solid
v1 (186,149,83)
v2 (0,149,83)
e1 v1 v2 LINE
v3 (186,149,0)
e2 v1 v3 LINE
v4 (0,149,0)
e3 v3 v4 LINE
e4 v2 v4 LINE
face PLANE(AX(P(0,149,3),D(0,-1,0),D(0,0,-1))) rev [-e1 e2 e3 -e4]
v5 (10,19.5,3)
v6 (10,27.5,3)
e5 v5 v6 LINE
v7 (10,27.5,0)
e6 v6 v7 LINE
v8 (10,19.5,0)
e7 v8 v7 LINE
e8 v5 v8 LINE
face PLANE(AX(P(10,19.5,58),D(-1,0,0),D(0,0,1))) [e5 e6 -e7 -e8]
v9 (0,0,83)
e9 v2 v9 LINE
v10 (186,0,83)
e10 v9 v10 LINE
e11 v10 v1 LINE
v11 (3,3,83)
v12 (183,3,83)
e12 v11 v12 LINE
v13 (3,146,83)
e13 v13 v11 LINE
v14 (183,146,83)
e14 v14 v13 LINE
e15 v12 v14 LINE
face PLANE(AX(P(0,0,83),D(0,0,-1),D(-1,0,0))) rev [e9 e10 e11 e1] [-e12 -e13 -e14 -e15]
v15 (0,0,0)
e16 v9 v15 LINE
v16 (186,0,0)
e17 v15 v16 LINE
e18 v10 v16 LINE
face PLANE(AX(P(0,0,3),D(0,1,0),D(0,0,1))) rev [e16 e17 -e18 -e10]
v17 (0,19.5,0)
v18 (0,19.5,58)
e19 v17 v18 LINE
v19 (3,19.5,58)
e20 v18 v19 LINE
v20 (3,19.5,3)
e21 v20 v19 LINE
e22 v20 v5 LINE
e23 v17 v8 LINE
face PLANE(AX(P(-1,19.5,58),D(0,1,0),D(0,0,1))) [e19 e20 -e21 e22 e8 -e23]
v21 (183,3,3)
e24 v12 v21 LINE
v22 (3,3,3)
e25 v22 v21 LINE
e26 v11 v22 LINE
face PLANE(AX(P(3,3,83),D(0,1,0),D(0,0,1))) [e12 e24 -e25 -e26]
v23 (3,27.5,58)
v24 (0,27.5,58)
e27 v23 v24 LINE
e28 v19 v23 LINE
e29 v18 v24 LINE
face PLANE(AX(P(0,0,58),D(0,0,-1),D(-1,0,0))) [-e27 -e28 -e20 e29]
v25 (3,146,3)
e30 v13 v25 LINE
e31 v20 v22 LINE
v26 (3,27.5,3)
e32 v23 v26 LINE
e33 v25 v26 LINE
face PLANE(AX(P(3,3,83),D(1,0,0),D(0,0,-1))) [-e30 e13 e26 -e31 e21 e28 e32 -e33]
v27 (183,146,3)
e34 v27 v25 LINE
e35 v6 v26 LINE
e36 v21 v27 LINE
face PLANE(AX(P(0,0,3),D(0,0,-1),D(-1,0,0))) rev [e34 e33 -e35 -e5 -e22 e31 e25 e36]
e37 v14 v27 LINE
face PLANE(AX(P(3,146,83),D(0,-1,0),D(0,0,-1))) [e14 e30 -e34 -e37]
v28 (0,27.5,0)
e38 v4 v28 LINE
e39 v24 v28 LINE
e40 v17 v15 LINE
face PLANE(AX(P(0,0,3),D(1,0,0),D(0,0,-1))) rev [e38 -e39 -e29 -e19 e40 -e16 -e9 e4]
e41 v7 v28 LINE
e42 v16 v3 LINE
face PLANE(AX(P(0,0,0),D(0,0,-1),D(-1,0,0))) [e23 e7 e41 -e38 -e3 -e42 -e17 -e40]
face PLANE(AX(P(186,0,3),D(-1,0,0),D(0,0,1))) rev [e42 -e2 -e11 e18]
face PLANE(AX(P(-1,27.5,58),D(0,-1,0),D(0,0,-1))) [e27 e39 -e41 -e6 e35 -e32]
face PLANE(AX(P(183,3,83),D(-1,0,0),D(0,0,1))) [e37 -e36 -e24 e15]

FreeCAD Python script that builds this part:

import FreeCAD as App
import Part
import Sketcher

doc = App.newDocument("Part")
body = doc.addObject("PartDesign::Body", "Body")

sketch1 = body.newObject("Sketcher::SketchObject", "Sketch")
sketch1.AttachmentSupport = (doc.getObject("XY_Plane"), [""])
sketch1.MapMode = "FlatFace"
sketch1.addGeometry(Part.LineSegment(App.Vector(0, 149, 0), App.Vector(0, 0, 0)), False)
sketch1.addGeometry(Part.LineSegment(App.Vector(0, 0, 0), App.Vector(186, 0, 0)), False)
sketch1.addGeometry(Part.LineSegment(App.Vector(186, 0, 0), App.Vector(186, 149, 0)), False)
sketch1.addGeometry(Part.LineSegment(App.Vector(186, 149, 0), App.Vector(0, 149, 0)), False)
sketch1.addConstraint(Sketcher.Constraint("Coincident", 0, 2, 1, 1))
sketch1.addConstraint(Sketcher.Constraint("Coincident", 1, 2, 2, 1))
sketch1.addConstraint(Sketcher.Constraint("Coincident", 2, 2, 3, 1))
sketch1.addConstraint(Sketcher.Constraint("Coincident", 3, 2, 0, 1))
sketch1.addConstraint(Sketcher.Constraint("Vertical", 0))
sketch1.addConstraint(Sketcher.Constraint("Horizontal", 1))
sketch1.addConstraint(Sketcher.Constraint("Vertical", 2))
sketch1.addConstraint(Sketcher.Constraint("Horizontal", 3))
sketch1.addConstraint(Sketcher.Constraint("Coincident", 0, 2, -1, 1))
sketch1.addConstraint(Sketcher.Constraint("DistanceX", 1, 1, 1, 2, 186.0))
sketch1.addConstraint(Sketcher.Constraint("DistanceY", 0, 2, 0, 1, 149.0))
pad1 = body.newObject("PartDesign::Pad", "Pad")
pad1.Profile = sketch1
pad1.Length = 3

sketch2 = body.newObject("Sketcher::SketchObject", "Sketch001")
sketch2.AttachmentSupport = (doc.getObject("XY_Plane"), [""])
sketch2.MapMode = "FlatFace"
sketch2.addGeometry(Part.LineSegment(App.Vector(0, 149, 0), App.Vector(0, 0, 0)), False)
sketch2.addGeometry(Part.LineSegment(App.Vector(0, 0, 0), App.Vector(186, 0, 0)), False)
sketch2.addGeometry(Part.LineSegment(App.Vector(186, 0, 0), App.Vector(186, 149, 0)), False)
sketch2.addGeometry(Part.LineSegment(App.Vector(186, 149, 0), App.Vector(0, 149, 0)), False)
sketch2.addGeometry(Part.LineSegment(App.Vector(183, 3, 0), App.Vector(3, 3, 0)), False)
sketch2.addGeometry(Part.LineSegment(App.Vector(3, 3, 0), App.Vector(3, 146, 0)), False)
sketch2.addGeometry(Part.LineSegment(App.Vector(3, 146, 0), App.Vector(183, 146, 0)), False)
sketch2.addGeometry(Part.LineSegment(App.Vector(183, 146, 0), App.Vector(183, 3, 0)), False)
sketch2.addConstraint(Sketcher.Constraint("Coincident", 0, 2, 1, 1))
sketch2.addConstraint(Sketcher.Constraint("Coincident", 1, 2, 2, 1))
sketch2.addConstraint(Sketcher.Constraint("Coincident", 2, 2, 3, 1))
sketch2.addConstraint(Sketcher.Constraint("Coincident", 3, 2, 0, 1))
sketch2.addConstraint(Sketcher.Constraint("Coincident", 4, 2, 5, 1))
sketch2.addConstraint(Sketcher.Constraint("Coincident", 5, 2, 6, 1))
sketch2.addConstraint(Sketcher.Constraint("Coincident", 6, 2, 7, 1))
sketch2.addConstraint(Sketcher.Constraint("Coincident", 7, 2, 4, 1))
sketch2.addConstraint(Sketcher.Constraint("Vertical", 0))
sketch2.addConstraint(Sketcher.Constraint("Horizontal", 1))
sketch2.addConstraint(Sketcher.Constraint("Vertical", 2))
sketch2.addConstraint(Sketcher.Constraint("Horizontal", 3))
sketch2.addConstraint(Sketcher.Constraint("Horizontal", 4))
sketch2.addConstraint(Sketcher.Constraint("Vertical", 5))
sketch2.addConstraint(Sketcher.Constraint("Horizontal", 6))
sketch2.addConstraint(Sketcher.Constraint("Vertical", 7))
sketch2.addConstraint(Sketcher.Constraint("Coincident", 0, 2, -1, 1))
sketch2.addConstraint(Sketcher.Constraint("DistanceX", 1, 1, 1, 2, 186.0))
sketch2.addConstraint(Sketcher.Constraint("DistanceX", 4, 2, 4, 1, 180.0))
sketch2.addConstraint(Sketcher.Constraint("DistanceY", 0, 2, 0, 1, 149.0))
sketch2.addConstraint(Sketcher.Constraint("DistanceY", 5, 1, 5, 2, 143.0))
sketch2.addConstraint(Sketcher.Constraint("DistanceX", -1, 1, 4, 2, 3.0))
sketch2.addConstraint(Sketcher.Constraint("DistanceY", -1, 1, 4, 2, 3.0))
pad2 = body.newObject("PartDesign::Pad", "Pad001")
pad2.Profile = sketch2
pad2.Length = 83

sketch3 = body.newObject("Sketcher::SketchObject", "Sketch002")
sketch3.AttachmentSupport = (doc.getObject("XY_Plane"), [""])
sketch3.MapMode = "FlatFace"
sketch3.addGeometry(Part.LineSegment(App.Vector(-1, 28, 0), App.Vector(-1, 20, 0)), False)
sketch3.addGeometry(Part.LineSegment(App.Vector(-1, 20, 0), App.Vector(10, 20, 0)), False)
sketch3.addGeometry(Part.LineSegment(App.Vector(10, 20, 0), App.Vector(10, 28, 0)), False)
sketch3.addGeometry(Part.LineSegment(App.Vector(10, 28, 0), App.Vector(-1, 28, 0)), False)
sketch3.addConstraint(Sketcher.Constraint("Coincident", 0, 2, 1, 1))
sketch3.addConstraint(Sketcher.Constraint("Coincident", 1, 2, 2, 1))
sketch3.addConstraint(Sketcher.Constraint("Coincident", 2, 2, 3, 1))
sketch3.addConstraint(Sketcher.Constraint("Coincident", 3, 2, 0, 1))
sketch3.addConstraint(Sketcher.Constraint("Vertical", 0))
sketch3.addConstraint(Sketcher.Constraint("Horizontal", 1))
sketch3.addConstraint(Sketcher.Constraint("Vertical", 2))
sketch3.addConstraint(Sketcher.Constraint("Horizontal", 3))
sketch3.addConstraint(Sketcher.Constraint("DistanceX", 1, 1, 1, 2, 11.0))
sketch3.addConstraint(Sketcher.Constraint("DistanceY", 0, 2, 0, 1, 8.0))
sketch3.addConstraint(Sketcher.Constraint("DistanceX", 0, 2, -1, 1, 1.0))
sketch3.addConstraint(Sketcher.Constraint("DistanceY", -1, 1, 0, 2, 19.5))
pocket1 = body.newObject("PartDesign::Pocket", "Pocket")
pocket1.Profile = sketch3
pocket1.Length = 58
pocket1.Reversed = True

doc.recompute()
